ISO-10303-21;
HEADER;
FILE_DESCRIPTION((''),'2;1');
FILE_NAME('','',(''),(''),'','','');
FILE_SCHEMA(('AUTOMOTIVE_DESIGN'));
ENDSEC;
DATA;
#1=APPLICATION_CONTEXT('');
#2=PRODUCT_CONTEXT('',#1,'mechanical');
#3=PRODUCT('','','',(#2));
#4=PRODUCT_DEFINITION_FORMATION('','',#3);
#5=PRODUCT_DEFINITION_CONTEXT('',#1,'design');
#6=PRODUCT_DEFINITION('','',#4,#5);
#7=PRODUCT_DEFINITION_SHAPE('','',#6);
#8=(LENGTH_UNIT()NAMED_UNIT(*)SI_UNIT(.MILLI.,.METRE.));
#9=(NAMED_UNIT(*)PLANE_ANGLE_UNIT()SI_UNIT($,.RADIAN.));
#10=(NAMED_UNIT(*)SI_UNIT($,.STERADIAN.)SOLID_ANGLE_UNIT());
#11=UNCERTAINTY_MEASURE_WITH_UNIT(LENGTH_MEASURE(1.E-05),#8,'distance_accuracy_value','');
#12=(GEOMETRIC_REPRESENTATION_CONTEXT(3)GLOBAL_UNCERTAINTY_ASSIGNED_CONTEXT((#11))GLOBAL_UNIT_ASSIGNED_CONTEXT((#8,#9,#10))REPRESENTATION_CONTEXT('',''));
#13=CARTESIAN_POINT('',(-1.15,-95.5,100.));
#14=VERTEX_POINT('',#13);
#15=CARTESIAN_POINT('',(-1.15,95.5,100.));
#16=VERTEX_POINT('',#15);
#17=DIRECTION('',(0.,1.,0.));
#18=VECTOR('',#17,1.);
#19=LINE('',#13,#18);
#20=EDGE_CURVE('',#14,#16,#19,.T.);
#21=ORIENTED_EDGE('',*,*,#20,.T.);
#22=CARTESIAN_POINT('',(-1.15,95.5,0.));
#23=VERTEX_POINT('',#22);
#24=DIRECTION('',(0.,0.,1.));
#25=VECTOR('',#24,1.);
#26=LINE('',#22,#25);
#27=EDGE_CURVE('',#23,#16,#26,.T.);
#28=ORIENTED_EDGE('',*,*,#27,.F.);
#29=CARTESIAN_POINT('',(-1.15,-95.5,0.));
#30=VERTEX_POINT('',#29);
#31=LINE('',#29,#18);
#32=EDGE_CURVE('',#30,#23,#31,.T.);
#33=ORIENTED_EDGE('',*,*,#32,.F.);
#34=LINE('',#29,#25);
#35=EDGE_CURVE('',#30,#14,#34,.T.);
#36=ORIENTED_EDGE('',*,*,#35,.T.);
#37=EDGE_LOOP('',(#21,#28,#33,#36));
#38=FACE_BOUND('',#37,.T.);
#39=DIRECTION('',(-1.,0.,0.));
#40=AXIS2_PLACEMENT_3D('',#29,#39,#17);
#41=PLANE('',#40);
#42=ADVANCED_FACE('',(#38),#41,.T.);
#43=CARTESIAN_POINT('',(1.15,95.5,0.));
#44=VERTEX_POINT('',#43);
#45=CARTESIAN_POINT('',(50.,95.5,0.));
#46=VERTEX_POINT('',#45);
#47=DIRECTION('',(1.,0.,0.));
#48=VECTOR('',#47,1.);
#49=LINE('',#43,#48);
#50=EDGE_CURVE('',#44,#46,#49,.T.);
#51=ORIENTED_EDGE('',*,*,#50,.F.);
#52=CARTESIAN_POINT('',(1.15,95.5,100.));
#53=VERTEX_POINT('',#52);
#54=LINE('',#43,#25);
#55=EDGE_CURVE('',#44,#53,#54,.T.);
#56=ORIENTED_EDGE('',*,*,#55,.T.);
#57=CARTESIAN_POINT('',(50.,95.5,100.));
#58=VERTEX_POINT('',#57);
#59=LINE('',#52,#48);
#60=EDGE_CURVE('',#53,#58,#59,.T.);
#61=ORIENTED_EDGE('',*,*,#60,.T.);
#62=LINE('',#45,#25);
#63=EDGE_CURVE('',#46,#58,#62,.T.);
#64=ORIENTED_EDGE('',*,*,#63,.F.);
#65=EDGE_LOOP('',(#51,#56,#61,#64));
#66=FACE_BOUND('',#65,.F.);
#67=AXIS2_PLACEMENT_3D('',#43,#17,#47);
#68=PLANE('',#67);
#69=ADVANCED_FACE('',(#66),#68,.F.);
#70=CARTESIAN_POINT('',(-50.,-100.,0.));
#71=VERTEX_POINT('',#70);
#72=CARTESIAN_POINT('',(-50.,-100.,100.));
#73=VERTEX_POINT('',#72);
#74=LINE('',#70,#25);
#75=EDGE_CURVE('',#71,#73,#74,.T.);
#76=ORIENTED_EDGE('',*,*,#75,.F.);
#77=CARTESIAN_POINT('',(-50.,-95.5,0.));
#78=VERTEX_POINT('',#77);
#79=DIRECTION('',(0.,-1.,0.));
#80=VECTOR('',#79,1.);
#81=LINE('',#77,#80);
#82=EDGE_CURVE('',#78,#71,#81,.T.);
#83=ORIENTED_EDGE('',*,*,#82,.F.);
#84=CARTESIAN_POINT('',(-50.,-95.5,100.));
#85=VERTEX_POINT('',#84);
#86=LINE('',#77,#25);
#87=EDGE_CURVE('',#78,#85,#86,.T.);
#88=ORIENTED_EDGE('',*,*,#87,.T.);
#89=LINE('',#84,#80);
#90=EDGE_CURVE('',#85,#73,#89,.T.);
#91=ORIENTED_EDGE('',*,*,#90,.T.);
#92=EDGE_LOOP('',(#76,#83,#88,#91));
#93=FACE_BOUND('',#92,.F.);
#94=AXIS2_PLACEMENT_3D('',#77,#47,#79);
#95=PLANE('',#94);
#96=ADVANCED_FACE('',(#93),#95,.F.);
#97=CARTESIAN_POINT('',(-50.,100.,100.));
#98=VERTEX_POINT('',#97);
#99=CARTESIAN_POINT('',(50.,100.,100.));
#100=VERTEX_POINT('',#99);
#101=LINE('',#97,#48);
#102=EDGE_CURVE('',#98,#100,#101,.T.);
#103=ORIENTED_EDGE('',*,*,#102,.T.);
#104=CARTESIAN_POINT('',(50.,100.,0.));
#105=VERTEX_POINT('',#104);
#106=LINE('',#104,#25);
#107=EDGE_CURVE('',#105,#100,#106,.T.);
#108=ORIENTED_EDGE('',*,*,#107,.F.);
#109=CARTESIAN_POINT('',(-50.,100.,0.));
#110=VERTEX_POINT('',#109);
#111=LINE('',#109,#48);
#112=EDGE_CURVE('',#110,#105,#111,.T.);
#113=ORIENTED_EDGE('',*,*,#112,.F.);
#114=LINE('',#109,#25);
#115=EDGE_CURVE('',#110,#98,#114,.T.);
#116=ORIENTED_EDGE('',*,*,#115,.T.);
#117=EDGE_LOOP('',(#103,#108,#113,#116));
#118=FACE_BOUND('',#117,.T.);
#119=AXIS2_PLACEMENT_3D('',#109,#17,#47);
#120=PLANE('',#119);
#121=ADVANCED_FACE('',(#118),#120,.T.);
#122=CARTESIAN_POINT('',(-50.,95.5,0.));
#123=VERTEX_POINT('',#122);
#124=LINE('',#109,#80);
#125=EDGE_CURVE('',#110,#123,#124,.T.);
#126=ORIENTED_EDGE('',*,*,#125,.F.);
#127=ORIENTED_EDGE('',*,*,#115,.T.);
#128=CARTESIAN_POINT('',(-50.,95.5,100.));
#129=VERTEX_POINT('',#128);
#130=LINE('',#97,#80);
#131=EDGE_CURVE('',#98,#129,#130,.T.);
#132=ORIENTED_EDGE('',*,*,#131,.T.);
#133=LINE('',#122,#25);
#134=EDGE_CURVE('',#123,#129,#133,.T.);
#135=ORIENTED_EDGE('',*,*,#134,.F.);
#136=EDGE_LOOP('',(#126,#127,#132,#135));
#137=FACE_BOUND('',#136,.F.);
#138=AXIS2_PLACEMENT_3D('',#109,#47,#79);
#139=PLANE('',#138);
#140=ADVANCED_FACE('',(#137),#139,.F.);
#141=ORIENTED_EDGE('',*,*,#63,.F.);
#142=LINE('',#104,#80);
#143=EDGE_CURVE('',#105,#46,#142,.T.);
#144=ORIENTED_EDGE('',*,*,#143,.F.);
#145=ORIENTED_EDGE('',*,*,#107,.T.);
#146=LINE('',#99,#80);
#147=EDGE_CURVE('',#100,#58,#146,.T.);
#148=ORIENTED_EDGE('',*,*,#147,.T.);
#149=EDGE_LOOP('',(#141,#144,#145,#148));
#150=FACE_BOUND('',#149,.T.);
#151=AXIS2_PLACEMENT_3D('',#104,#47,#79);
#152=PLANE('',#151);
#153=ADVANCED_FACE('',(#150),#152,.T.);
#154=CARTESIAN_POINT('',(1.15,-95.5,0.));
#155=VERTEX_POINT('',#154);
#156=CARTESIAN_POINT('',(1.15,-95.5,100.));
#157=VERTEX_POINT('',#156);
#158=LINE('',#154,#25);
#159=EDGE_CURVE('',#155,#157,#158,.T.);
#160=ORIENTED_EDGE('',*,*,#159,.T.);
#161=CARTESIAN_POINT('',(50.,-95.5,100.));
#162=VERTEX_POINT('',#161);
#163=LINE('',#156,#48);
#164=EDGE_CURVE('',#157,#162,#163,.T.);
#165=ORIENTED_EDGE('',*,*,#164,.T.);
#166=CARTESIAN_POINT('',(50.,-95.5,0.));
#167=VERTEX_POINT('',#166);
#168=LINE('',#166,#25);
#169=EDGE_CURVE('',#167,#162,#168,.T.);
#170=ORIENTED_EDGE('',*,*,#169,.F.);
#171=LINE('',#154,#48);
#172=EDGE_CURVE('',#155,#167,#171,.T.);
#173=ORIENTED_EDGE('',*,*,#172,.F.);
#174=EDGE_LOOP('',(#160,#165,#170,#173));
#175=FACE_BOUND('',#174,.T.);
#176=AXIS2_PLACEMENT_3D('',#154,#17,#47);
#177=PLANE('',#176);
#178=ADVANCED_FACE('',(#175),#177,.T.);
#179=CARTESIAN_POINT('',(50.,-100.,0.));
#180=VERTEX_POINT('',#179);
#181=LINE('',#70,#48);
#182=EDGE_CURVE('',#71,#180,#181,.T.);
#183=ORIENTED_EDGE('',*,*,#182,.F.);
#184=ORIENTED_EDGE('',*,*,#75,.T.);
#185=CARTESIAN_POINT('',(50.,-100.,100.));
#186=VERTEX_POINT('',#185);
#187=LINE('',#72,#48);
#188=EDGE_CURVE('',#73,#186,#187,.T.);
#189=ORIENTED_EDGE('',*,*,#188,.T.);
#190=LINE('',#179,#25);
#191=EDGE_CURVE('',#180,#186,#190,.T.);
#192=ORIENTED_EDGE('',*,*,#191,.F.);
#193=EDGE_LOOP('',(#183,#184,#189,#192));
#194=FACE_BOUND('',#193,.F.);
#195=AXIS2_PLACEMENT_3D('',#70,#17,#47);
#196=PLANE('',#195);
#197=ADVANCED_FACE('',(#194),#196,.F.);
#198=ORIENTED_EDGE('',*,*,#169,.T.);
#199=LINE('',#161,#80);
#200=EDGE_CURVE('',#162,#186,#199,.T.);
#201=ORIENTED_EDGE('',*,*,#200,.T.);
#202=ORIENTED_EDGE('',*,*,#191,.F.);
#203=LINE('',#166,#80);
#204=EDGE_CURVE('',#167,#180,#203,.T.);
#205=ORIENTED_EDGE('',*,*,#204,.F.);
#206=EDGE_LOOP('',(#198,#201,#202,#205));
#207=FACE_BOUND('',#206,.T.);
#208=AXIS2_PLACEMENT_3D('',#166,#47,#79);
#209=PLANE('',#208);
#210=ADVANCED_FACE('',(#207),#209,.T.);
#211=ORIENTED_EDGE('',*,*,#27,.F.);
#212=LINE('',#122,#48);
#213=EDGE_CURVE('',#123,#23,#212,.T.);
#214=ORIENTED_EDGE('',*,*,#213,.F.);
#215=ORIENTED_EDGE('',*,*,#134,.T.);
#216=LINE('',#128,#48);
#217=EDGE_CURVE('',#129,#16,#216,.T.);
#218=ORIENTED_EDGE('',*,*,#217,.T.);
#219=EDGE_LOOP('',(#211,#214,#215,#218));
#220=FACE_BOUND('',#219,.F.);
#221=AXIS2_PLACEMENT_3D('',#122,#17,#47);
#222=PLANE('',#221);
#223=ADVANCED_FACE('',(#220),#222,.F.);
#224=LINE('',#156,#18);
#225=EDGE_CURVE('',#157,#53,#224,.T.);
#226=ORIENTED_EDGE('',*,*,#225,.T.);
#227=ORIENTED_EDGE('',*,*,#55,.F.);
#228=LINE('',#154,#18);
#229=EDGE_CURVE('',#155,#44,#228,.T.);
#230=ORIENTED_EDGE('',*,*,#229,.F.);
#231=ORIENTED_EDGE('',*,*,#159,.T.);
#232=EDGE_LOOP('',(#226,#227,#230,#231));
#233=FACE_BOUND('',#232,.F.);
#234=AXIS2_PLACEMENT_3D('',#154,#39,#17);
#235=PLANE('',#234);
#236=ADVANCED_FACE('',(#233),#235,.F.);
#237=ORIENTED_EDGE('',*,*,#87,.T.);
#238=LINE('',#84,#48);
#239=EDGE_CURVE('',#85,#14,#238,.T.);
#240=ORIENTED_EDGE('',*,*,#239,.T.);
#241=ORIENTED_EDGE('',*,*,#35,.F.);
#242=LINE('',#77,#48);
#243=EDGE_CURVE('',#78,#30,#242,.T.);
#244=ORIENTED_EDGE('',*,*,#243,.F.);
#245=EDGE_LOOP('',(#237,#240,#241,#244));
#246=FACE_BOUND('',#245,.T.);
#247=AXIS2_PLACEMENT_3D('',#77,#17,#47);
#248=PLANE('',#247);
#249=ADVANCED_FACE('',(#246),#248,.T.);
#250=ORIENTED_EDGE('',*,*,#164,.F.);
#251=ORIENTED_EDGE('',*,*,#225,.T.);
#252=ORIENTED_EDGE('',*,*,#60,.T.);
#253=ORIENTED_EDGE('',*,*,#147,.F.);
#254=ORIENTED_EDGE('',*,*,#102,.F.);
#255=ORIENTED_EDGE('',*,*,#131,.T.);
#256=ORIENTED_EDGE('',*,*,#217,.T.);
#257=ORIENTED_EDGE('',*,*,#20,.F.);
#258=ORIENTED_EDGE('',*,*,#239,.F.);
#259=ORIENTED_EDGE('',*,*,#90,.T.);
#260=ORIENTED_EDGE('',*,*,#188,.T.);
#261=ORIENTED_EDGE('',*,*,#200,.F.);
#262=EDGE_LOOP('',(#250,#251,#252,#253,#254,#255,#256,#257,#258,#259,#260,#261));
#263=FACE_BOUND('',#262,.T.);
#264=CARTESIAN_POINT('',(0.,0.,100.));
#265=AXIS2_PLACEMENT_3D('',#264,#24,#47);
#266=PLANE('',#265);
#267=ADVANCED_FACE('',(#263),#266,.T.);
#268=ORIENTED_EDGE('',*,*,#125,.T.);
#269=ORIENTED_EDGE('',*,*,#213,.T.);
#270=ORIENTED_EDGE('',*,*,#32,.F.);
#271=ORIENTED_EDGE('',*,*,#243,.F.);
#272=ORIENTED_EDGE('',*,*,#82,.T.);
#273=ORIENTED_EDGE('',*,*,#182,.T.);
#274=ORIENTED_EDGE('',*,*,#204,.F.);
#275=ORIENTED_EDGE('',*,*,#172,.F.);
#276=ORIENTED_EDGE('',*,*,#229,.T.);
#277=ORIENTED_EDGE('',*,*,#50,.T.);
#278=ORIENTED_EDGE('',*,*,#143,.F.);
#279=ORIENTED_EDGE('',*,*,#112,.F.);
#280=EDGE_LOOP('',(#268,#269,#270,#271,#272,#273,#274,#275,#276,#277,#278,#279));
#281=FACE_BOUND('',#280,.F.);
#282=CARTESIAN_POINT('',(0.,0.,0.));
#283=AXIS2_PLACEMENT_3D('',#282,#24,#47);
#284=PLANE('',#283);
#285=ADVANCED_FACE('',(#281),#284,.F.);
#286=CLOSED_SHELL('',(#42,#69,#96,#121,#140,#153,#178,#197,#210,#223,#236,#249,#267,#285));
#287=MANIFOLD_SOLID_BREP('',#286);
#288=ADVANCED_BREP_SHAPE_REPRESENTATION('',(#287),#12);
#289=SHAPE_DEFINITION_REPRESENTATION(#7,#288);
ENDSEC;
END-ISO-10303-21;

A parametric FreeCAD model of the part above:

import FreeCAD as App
import Part
import Sketcher

V = App.Vector

doc = App.newDocument("Part")
body = doc.addObject("PartDesign::Body", "Body")

sketch1 = body.newObject("Sketcher::SketchObject", "Sketch")
sketch1.AttachmentSupport = (doc.getObject("XY_Plane"), [""])
sketch1.MapMode = "FlatFace"
sketch1.addGeometry([
    Part.LineSegment(V(50, 100, 0), V(-50, 100, 0)),
    Part.LineSegment(V(-50, 100, 0), V(-50, 95.5, 0)),
    Part.LineSegment(V(-50, 95.5, 0), V(-1.15, 95.5, 0)),
    Part.LineSegment(V(-1.15, 95.5, 0), V(-1.15, -95.5, 0)),
    Part.LineSegment(V(-1.15, -95.5, 0), V(-50, -95.5, 0)),
    Part.LineSegment(V(-50, -95.5, 0), V(-50, -100, 0)),
    Part.LineSegment(V(-50, -100, 0), V(50, -100, 0)),
    Part.LineSegment(V(50, -100, 0), V(50, -95.5, 0)),
    Part.LineSegment(V(50, -95.5, 0), V(1.15, -95.5, 0)),
    Part.LineSegment(V(1.15, -95.5, 0), V(1.15, 95.5, 0)),
    Part.LineSegment(V(1.15, 95.5, 0), V(50, 95.5, 0)),
    Part.LineSegment(V(50, 95.5, 0), V(50, 100, 0)),
], False)
sketch1.addConstraint([
    Sketcher.Constraint("Coincident", 0, 2, 1, 1),
    Sketcher.Constraint("Coincident", 1, 2, 2, 1),
    Sketcher.Constraint("Coincident", 2, 2, 3, 1),
    Sketcher.Constraint("Coincident", 3, 2, 4, 1),
    Sketcher.Constraint("Coincident", 4, 2, 5, 1),
    Sketcher.Constraint("Coincident", 5, 2, 6, 1),
    Sketcher.Constraint("Coincident", 6, 2, 7, 1),
    Sketcher.Constraint("Coincident", 7, 2, 8, 1),
    Sketcher.Constraint("Coincident", 8, 2, 9, 1),
    Sketcher.Constraint("Coincident", 9, 2, 10, 1),
    Sketcher.Constraint("Coincident", 10, 2, 11, 1),
    Sketcher.Constraint("Coincident", 11, 2, 0, 1),
    Sketcher.Constraint("Horizontal", 0),
    Sketcher.Constraint("Vertical", 1),
    Sketcher.Constraint("Horizontal", 2),
    Sketcher.Constraint("Vertical", 3),
    Sketcher.Constraint("Horizontal", 4),
    Sketcher.Constraint("Vertical", 5),
    Sketcher.Constraint("Horizontal", 6),
    Sketcher.Constraint("Vertical", 7),
    Sketcher.Constraint("Horizontal", 8),
    Sketcher.Constraint("Vertical", 9),
    Sketcher.Constraint("Horizontal", 10),
    Sketcher.Constraint("Vertical", 11),
    Sketcher.Constraint("Symmetric", 0, 2, 6, 2, -1, 1),
    Sketcher.Constraint("Symmetric", 2, 2, 8, 2, -1, 1),
    Sketcher.Constraint("Symmetric", 4, 2, 10, 2, -1, 1),
    Sketcher.Constraint("Symmetric", 4, 2, 7, 2, -2),
    Sketcher.Constraint("DistanceX", 0, 2, 0, 1, 100.0),
    Sketcher.Constraint("DistanceY", -1, 1, 0, 2, 100.0),
    Sketcher.Constraint("DistanceY", 3, 2, 3, 1, 191.0),
    Sketcher.Constraint("DistanceX", 2, 1, 2, 2, 48.85),
])
pad1 = body.newObject("PartDesign::Pad", "Pad")
pad1.Profile = sketch1
pad1.Length = 100

doc.recompute()
